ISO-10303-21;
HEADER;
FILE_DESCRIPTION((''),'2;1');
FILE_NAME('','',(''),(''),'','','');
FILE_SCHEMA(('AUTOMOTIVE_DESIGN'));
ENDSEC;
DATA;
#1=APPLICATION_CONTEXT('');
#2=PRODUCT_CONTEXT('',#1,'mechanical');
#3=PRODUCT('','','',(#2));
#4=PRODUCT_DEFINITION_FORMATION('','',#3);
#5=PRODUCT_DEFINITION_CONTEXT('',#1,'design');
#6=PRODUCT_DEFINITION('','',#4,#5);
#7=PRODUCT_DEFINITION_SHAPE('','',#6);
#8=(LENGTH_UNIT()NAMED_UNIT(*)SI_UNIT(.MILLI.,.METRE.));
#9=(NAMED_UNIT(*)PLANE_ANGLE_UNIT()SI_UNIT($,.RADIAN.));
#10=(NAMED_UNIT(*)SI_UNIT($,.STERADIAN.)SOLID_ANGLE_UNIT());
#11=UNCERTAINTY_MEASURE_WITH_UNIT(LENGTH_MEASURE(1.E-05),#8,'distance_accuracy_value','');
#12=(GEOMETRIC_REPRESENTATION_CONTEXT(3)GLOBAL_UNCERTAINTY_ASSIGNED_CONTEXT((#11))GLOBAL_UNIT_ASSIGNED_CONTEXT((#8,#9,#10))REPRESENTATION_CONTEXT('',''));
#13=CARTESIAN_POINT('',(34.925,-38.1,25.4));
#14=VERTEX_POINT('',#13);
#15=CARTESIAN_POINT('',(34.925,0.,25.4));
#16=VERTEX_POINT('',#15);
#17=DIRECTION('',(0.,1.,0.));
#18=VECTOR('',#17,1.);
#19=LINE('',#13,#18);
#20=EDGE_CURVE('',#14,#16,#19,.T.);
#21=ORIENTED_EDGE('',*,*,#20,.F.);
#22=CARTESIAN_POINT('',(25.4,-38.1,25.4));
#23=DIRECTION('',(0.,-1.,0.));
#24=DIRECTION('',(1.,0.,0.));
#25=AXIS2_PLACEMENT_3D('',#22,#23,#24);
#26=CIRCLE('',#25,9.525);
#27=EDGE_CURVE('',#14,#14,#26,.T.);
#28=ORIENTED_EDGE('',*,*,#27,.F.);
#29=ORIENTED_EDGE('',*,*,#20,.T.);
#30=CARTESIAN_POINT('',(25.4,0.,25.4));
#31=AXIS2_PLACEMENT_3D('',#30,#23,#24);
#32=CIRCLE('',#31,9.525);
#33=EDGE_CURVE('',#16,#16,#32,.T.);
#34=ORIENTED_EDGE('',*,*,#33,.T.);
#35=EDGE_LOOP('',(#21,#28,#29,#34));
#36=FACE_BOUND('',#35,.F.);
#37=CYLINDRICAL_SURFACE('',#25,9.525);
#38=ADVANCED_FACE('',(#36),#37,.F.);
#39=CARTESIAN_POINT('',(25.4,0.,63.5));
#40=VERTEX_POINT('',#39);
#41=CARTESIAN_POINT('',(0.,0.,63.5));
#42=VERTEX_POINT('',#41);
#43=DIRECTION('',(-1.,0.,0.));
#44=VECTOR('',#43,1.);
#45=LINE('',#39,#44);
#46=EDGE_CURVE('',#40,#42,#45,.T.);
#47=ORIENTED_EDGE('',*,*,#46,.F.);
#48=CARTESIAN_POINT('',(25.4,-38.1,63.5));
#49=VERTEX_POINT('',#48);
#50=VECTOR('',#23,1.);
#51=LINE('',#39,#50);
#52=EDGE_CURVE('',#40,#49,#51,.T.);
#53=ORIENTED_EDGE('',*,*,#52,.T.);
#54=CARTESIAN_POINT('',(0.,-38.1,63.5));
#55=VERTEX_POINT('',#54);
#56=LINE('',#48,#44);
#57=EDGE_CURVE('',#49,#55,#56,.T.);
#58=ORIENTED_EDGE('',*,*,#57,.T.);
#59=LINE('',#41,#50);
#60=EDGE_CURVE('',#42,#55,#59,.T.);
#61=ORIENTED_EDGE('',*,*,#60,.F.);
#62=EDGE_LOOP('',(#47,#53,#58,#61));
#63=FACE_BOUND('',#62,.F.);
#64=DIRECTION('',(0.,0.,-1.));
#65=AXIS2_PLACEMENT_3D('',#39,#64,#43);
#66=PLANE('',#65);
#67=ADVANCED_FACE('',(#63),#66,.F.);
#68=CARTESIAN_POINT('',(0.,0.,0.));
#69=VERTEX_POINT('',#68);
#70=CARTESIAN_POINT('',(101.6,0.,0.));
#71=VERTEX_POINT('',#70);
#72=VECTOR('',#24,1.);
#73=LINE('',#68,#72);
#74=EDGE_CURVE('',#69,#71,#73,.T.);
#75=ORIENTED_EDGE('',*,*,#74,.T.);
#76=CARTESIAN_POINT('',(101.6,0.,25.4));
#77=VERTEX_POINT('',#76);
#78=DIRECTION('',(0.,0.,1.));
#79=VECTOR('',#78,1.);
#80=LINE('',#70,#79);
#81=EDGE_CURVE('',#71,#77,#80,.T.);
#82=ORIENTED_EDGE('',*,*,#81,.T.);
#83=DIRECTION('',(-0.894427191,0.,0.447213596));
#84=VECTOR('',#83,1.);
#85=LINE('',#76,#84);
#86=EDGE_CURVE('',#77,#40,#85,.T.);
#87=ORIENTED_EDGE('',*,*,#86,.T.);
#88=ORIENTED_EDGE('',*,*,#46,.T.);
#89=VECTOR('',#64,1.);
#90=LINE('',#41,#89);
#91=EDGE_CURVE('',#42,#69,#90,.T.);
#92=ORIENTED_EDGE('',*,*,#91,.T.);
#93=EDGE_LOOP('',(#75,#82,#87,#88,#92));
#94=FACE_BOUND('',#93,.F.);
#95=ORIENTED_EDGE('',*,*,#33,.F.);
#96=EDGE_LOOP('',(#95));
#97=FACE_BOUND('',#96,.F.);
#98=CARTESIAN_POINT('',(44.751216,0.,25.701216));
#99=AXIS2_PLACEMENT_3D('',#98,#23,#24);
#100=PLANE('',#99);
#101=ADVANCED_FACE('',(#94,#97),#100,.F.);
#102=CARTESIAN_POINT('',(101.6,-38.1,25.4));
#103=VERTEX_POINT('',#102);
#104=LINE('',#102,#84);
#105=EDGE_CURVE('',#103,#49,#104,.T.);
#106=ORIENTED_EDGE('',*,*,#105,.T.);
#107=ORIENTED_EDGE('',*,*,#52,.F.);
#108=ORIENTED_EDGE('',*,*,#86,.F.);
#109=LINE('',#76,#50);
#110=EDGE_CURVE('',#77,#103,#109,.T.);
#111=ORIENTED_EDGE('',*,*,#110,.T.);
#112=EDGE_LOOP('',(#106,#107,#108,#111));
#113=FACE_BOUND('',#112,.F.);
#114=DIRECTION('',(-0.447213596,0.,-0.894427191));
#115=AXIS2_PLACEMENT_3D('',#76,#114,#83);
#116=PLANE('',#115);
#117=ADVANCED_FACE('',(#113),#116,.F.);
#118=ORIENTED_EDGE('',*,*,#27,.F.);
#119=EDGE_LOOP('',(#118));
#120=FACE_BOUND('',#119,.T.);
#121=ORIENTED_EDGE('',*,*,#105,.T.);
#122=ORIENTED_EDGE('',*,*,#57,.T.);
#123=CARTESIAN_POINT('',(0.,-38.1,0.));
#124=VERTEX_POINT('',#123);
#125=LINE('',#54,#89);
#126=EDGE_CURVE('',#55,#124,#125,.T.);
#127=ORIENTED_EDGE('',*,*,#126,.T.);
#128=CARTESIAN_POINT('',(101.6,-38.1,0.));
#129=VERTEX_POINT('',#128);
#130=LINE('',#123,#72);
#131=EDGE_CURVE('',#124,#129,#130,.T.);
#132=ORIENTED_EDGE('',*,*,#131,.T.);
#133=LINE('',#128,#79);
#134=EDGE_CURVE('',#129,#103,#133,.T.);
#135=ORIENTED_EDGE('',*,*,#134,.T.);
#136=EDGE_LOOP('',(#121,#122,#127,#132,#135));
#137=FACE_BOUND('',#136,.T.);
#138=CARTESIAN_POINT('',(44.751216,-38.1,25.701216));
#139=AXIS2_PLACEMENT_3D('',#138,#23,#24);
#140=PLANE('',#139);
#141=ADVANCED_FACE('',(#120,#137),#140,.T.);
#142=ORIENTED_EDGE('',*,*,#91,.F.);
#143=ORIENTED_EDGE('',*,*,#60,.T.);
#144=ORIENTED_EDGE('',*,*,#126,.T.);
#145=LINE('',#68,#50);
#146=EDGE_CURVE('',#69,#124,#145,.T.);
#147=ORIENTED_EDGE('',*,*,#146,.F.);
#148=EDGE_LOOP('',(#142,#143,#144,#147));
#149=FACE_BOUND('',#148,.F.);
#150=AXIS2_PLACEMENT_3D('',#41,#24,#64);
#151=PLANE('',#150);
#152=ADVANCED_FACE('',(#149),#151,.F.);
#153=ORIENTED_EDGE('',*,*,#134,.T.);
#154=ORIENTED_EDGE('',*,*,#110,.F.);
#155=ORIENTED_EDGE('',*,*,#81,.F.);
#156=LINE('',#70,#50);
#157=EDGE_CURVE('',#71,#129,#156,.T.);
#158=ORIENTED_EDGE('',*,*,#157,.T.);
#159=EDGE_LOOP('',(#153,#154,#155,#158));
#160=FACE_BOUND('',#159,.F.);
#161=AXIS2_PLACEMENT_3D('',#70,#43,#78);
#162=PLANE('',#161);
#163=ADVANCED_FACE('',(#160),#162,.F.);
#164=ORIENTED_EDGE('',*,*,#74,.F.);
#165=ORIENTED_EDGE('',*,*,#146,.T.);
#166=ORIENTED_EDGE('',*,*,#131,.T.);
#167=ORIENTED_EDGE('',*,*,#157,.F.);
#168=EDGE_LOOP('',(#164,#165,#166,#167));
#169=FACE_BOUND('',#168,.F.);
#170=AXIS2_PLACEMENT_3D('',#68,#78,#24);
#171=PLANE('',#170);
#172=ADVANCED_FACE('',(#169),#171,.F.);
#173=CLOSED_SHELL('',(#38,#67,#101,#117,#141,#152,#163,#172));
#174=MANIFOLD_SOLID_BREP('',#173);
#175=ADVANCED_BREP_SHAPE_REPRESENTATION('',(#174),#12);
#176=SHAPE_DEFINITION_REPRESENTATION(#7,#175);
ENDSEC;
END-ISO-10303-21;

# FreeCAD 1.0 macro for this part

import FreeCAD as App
import Part
import Sketcher
Q = App.Units.Quantity

doc = App.newDocument("Part")
body = doc.addObject("PartDesign::Body", "Body")

# Sketch on XZ plane
sketch1 = body.newObject("Sketcher::SketchObject", "Sketch")
sketch1.AttachmentSupport = (doc.getObject("XZ_Plane"), [""])
sketch1.MapMode = "FlatFace"
sketch1.addGeometry([
    Part.LineSegment(App.Vector(0, 64, 0), App.Vector(0, 0, 0)),  # 0
    Part.LineSegment(App.Vector(0, 0, 0), App.Vector(102, 0, 0)),  # 1
    Part.LineSegment(App.Vector(102, 0, 0), App.Vector(102, 25, 0)),  # 2
    Part.LineSegment(App.Vector(102, 25, 0), App.Vector(25, 64, 0)),  # 3
    Part.LineSegment(App.Vector(25, 64, 0), App.Vector(0, 64, 0)),  # 4
], False)
sketch1.addConstraint([
    Sketcher.Constraint("Coincident", 0, 2, 1, 1),
    Sketcher.Constraint("Coincident", 1, 2, 2, 1),
    Sketcher.Constraint("Coincident", 2, 2, 3, 1),
    Sketcher.Constraint("Coincident", 3, 2, 4, 1),
    Sketcher.Constraint("Coincident", 4, 2, 0, 1),
    Sketcher.Constraint("Vertical", 0),
    Sketcher.Constraint("Horizontal", 1),
    Sketcher.Constraint("Vertical", 2),
    Sketcher.Constraint("Horizontal", 4),
    Sketcher.Constraint("Coincident", 0, 2, -1, 1),
    Sketcher.Constraint("Equal", 4, 2),
    Sketcher.Constraint("DistanceX", 1, 1, 1, 2, Q("4 in")),
    Sketcher.Constraint("DistanceX", 4, 2, 4, 1, Q("1 in")),
    Sketcher.Constraint("DistanceY", 0, 2, 0, 1, Q("2.5 in")),
])
pad1 = body.newObject("PartDesign::Pad", "Pad")
pad1.Profile = sketch1
pad1.Length = Q("1.5 in")

# Sketch on XZ plane
sketch2 = body.newObject("Sketcher::SketchObject", "Sketch001")
sketch2.AttachmentSupport = (doc.getObject("XZ_Plane"), [""])
sketch2.MapMode = "FlatFace"
sketch2.AttachmentOffset = App.Placement(App.Vector(0, 0, 1.5 * 25.4), App.Rotation())
sketch2.addGeometry(Part.Circle(App.Vector(25, 25, 0), App.Vector(0, 0, 1), 10), False)
sketch2.addConstraint([
    Sketcher.Constraint("Diameter", 0, Q("0.75 in")),
    Sketcher.Constraint("DistanceX", -1, 1, 0, 3, Q("1 in")),
    Sketcher.Constraint("DistanceY", -1, 1, 0, 3, Q("1 in")),
])
pocket1 = body.newObject("PartDesign::Pocket", "Pocket")
pocket1.Profile = sketch2
pocket1.Type = "ThroughAll"

doc.recompute()
